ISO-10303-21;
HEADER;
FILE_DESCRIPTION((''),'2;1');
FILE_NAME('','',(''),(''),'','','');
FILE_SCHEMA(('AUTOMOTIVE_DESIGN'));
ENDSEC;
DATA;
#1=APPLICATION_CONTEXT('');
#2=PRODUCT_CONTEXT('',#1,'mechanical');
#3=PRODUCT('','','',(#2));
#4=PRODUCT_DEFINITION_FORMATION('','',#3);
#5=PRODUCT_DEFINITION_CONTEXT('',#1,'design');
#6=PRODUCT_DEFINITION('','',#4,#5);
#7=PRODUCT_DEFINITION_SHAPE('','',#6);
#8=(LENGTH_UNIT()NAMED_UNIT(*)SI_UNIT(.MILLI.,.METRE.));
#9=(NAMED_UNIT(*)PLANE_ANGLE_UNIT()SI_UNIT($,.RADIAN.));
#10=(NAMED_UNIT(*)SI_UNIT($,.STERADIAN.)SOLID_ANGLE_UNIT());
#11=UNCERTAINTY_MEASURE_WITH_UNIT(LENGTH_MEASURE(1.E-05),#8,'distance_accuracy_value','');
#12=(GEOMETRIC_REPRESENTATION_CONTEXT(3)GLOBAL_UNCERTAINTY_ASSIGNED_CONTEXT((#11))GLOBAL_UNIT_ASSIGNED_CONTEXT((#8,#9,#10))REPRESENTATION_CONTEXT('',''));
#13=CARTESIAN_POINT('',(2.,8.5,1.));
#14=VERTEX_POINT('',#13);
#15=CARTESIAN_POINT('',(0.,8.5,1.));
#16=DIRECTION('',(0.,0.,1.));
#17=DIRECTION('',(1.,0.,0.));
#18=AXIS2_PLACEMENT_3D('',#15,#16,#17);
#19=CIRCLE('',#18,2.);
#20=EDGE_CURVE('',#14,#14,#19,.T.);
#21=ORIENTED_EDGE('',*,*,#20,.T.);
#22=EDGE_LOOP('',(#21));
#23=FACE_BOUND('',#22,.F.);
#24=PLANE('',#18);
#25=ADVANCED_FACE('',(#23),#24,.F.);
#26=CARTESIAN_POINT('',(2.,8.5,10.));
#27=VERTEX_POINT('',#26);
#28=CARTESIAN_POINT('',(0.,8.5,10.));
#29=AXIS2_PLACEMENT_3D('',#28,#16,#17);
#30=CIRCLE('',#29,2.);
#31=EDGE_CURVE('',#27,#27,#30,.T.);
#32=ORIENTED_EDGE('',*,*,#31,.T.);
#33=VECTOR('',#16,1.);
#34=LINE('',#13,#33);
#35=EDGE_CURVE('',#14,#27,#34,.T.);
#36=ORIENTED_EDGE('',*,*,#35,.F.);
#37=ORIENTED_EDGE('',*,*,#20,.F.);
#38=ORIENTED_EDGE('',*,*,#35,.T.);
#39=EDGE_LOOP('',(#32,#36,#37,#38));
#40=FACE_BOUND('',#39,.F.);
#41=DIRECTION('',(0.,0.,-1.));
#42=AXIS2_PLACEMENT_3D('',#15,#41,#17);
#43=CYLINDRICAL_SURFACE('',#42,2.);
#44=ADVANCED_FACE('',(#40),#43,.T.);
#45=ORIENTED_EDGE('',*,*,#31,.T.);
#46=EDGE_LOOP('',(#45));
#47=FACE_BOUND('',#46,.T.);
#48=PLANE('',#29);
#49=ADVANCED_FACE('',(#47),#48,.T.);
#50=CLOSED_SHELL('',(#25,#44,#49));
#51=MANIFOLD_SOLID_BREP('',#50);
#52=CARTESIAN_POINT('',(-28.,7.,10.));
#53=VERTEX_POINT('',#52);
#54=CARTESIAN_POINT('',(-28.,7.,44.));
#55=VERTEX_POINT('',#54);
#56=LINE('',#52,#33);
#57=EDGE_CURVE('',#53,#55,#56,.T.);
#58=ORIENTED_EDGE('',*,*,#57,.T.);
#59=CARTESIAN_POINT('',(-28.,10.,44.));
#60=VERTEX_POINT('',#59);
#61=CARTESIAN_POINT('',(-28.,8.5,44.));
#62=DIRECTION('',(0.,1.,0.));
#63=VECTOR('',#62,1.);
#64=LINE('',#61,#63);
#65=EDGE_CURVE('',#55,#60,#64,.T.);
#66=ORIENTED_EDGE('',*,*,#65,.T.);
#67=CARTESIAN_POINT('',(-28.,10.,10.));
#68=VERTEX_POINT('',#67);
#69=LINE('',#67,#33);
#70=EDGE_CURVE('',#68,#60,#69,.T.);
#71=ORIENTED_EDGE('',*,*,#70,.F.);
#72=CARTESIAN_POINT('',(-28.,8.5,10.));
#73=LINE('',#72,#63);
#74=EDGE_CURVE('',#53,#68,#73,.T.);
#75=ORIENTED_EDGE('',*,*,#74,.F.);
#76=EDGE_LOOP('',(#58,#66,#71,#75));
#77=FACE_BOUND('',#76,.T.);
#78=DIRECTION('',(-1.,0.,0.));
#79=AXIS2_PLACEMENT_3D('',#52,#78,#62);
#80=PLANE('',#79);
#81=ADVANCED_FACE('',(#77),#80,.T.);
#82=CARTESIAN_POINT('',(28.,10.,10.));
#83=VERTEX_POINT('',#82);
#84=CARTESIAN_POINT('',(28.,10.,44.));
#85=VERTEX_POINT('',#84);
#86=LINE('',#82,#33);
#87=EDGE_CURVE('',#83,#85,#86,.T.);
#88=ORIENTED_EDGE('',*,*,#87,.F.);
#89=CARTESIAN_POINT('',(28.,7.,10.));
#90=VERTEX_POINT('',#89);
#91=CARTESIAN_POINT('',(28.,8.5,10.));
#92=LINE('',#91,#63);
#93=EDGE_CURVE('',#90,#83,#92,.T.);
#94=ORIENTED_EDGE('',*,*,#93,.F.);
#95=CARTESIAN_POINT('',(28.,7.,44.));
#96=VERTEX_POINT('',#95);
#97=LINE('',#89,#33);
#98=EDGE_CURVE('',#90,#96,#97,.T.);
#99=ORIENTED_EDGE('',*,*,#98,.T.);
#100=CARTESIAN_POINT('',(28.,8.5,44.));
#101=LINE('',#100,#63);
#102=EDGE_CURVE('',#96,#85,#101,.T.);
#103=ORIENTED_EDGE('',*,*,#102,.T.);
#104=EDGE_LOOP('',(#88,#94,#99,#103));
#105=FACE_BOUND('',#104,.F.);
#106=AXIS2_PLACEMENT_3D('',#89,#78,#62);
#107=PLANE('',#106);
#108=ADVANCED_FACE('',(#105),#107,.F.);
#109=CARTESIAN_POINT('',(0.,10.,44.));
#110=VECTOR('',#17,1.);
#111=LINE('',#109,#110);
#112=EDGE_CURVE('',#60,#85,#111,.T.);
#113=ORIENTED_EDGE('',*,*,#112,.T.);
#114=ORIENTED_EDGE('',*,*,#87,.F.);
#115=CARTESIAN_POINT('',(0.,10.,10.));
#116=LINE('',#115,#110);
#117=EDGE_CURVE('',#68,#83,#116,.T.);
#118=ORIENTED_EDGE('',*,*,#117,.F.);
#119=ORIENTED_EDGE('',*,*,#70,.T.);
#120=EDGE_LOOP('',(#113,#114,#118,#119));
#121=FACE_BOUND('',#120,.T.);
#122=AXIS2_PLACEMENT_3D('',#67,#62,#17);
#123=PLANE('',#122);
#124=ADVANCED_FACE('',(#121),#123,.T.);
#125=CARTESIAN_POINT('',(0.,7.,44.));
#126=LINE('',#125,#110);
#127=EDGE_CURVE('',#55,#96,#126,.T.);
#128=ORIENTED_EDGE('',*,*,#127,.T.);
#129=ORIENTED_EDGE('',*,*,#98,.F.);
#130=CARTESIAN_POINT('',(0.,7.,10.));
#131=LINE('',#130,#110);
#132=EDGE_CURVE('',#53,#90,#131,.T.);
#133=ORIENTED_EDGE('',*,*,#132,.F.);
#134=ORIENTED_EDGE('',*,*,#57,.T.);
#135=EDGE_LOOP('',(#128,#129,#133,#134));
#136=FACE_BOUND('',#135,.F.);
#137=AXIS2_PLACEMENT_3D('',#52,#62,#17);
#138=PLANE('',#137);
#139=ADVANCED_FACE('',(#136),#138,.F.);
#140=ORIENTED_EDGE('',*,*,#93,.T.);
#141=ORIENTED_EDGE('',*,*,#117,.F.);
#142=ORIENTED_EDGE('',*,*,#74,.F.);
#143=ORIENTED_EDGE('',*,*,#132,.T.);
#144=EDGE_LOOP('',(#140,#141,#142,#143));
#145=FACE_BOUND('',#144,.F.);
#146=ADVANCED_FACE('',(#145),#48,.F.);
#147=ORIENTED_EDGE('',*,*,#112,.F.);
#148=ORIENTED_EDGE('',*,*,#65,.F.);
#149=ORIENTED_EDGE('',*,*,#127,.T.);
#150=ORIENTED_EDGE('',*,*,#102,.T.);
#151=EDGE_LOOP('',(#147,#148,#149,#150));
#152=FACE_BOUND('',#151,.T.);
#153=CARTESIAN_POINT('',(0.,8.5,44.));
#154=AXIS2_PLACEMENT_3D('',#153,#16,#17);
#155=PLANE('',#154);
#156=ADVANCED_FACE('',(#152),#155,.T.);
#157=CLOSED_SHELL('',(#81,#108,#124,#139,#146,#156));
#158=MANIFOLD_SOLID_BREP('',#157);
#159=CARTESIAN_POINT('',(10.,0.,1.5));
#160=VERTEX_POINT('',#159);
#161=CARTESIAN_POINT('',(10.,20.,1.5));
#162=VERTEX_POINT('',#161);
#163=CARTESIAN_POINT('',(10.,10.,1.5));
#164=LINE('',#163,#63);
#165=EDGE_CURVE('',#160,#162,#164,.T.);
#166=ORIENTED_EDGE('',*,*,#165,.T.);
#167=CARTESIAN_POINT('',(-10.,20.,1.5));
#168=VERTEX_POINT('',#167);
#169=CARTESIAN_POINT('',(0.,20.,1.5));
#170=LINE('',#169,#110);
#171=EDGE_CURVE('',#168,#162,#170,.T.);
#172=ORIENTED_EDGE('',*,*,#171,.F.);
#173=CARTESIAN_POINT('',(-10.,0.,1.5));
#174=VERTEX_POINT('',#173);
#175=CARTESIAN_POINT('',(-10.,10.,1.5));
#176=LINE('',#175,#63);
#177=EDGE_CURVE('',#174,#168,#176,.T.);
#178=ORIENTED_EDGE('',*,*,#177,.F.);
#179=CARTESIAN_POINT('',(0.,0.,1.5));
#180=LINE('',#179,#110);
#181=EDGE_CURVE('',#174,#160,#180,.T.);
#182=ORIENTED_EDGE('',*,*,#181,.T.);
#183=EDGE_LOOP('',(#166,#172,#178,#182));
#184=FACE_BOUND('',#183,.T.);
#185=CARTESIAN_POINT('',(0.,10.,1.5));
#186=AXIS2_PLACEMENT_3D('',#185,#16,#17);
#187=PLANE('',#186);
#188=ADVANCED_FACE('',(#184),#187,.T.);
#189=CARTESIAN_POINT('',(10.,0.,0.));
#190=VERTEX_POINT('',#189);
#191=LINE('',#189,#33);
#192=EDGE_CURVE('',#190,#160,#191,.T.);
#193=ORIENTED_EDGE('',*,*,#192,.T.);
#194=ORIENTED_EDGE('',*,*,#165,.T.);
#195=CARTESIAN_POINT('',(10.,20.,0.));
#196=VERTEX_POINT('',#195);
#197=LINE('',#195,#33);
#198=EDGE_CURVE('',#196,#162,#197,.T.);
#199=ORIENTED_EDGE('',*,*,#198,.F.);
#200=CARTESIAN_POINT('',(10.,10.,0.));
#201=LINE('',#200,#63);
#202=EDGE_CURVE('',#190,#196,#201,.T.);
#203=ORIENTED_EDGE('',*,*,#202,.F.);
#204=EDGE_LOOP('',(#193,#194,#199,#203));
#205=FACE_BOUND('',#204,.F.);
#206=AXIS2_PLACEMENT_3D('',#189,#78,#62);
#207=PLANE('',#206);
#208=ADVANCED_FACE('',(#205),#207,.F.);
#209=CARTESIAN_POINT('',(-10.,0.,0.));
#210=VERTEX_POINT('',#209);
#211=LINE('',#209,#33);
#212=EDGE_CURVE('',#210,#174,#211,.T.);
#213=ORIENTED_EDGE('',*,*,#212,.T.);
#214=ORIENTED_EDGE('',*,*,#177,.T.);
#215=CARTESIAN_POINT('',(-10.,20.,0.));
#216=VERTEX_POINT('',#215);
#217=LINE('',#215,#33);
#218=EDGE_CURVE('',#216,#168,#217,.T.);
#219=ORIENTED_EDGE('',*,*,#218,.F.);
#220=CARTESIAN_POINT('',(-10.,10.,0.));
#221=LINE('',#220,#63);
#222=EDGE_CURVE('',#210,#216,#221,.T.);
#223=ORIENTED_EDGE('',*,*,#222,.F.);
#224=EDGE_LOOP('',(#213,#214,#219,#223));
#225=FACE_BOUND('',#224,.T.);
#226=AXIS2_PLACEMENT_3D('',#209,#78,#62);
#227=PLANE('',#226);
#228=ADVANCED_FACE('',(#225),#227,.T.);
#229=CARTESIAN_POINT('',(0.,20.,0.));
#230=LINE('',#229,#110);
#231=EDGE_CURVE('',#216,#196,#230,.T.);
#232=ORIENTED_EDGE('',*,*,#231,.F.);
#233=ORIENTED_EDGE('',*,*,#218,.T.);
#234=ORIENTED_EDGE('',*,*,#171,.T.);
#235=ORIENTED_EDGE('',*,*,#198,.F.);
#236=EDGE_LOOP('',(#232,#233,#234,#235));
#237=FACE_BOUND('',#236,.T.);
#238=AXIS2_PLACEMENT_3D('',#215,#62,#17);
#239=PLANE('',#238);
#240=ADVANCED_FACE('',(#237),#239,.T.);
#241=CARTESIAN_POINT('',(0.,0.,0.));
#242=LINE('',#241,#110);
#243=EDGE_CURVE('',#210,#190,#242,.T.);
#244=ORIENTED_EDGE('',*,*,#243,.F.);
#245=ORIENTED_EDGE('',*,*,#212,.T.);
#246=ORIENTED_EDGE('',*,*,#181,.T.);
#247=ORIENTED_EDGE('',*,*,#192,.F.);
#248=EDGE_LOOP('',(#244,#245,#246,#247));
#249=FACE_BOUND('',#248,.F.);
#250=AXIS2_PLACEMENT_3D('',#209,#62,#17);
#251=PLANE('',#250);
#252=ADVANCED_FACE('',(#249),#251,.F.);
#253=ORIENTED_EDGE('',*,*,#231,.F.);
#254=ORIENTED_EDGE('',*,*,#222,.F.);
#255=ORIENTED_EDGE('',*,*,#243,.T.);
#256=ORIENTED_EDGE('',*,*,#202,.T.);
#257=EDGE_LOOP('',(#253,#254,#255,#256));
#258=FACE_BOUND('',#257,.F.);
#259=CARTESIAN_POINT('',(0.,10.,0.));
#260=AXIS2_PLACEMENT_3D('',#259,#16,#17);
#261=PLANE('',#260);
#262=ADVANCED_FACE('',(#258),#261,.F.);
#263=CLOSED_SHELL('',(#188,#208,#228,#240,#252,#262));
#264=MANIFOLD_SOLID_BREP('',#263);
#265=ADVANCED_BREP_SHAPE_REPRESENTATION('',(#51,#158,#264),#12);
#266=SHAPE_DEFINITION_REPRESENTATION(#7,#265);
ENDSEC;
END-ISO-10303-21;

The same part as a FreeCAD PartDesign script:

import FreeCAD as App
import Part
import Sketcher

V = App.Vector

doc = App.newDocument("Part")
params = doc.addObject("Spreadsheet::Sheet", "Params")
for row, (alias, value) in enumerate([
    ("sketch1_width", "56 mm"),
    ("sketch1_height", "3 mm"),
    ("pad1_length", "34 mm"),
    ("sketch2_width", "20 mm"),
    ("pad2_length", "1.5 mm"),
    ("sketch3_diameter", "4 mm"),
    ("pad3_length", "9 mm"),
], start=1):
    params.set(f"A{row}", alias)
    params.set(f"B{row}", "=" + value)
    params.setAlias(f"B{row}", alias)

body = doc.addObject("PartDesign::Body", "Body")

# Sketch on XY plane
sketch1 = body.newObject("Sketcher::SketchObject", "Sketch")
sketch1.AttachmentSupport = (doc.getObject("XY_Plane"), [""])
sketch1.MapMode = "FlatFace"
sketch1.AttachmentOffset = App.Placement(V(0, 0, 10), App.Rotation())
sketch1.addGeometry([
    Part.LineSegment(V(-28, 10, 0), V(-28, 7, 0)),
    Part.LineSegment(V(-28, 7, 0), V(28, 7, 0)),
    Part.LineSegment(V(28, 7, 0), V(28, 10, 0)),
    Part.LineSegment(V(28, 10, 0), V(-28, 10, 0)),
], False)
sketch1.addConstraint([
    Sketcher.Constraint("Coincident", 0, 2, 1, 1),
    Sketcher.Constraint("Coincident", 1, 2, 2, 1),
    Sketcher.Constraint("Coincident", 2, 2, 3, 1),
    Sketcher.Constraint("Coincident", 3, 2, 0, 1),
    Sketcher.Constraint("Vertical", 0),
    Sketcher.Constraint("Horizontal", 1),
    Sketcher.Constraint("Vertical", 2),
    Sketcher.Constraint("Horizontal", 3),
    Sketcher.Constraint("DistanceX", 1, 1, 1, 2, 56.0),
    Sketcher.Constraint("DistanceY", 0, 2, 0, 1, 3.0),
    Sketcher.Constraint("DistanceX", 0, 2, -1, 1, 28.0),
    Sketcher.Constraint("DistanceY", -1, 1, 0, 2, 7.0),
])
sketch1.setExpression("Constraints[8]", "Params.sketch1_width")
sketch1.setExpression("Constraints[9]", "Params.sketch1_height")
pad1 = body.newObject("PartDesign::Pad", "Pad")
pad1.Profile = sketch1
pad1.setExpression("Length", "Params.pad1_length")
body2 = doc.addObject("PartDesign::Body", "Body001")

# Sketch on XY plane
sketch2 = body2.newObject("Sketcher::SketchObject", "Sketch001")
sketch2.AttachmentSupport = (doc.getObject("XY_Plane001"), [""])
sketch2.MapMode = "FlatFace"
sketch2.addGeometry([
    Part.LineSegment(V(-10, 20, 0), V(-10, 0, 0)),
    Part.LineSegment(V(-10, 0, 0), V(10, 0, 0)),
    Part.LineSegment(V(10, 0, 0), V(10, 20, 0)),
    Part.LineSegment(V(10, 20, 0), V(-10, 20, 0)),
], False)
sketch2.addConstraint([
    Sketcher.Constraint("Coincident", 0, 2, 1, 1),
    Sketcher.Constraint("Coincident", 1, 2, 2, 1),
    Sketcher.Constraint("Coincident", 2, 2, 3, 1),
    Sketcher.Constraint("Coincident", 3, 2, 0, 1),
    Sketcher.Constraint("Vertical", 0),
    Sketcher.Constraint("Horizontal", 1),
    Sketcher.Constraint("Vertical", 2),
    Sketcher.Constraint("Horizontal", 3),
    Sketcher.Constraint("Symmetric", 0, 2, 1, 2, -1, 1),
    Sketcher.Constraint("Equal", 3, 0),
    Sketcher.Constraint("DistanceX", 1, 1, 1, 2, 20.0),
])
sketch2.setExpression("Constraints[10]", "Params.sketch2_width")
pad2 = body2.newObject("PartDesign::Pad", "Pad001")
pad2.Profile = sketch2
pad2.setExpression("Length", "Params.pad2_length")
body3 = doc.addObject("PartDesign::Body", "Body002")

# Sketch on XY plane
sketch3 = body3.newObject("Sketcher::SketchObject", "Sketch002")
sketch3.AttachmentSupport = (doc.getObject("XY_Plane002"), [""])
sketch3.MapMode = "FlatFace"
sketch3.AttachmentOffset = App.Placement(V(0, 0, 1), App.Rotation())
sketch3.addGeometry(Part.Circle(V(0, 8.5, 0), V(0, 0, 1), 2), False)
sketch3.addConstraint([
    Sketcher.Constraint("PointOnObject", 0, 3, -2),
    Sketcher.Constraint("Diameter", 0, 4.0),
    Sketcher.Constraint("DistanceY", -1, 1, 0, 3, 8.5),
])
sketch3.setExpression("Constraints[1]", "Params.sketch3_diameter")
pad3 = body3.newObject("PartDesign::Pad", "Pad002")
pad3.Profile = sketch3
pad3.setExpression("Length", "Params.pad3_length")

doc.recompute()
